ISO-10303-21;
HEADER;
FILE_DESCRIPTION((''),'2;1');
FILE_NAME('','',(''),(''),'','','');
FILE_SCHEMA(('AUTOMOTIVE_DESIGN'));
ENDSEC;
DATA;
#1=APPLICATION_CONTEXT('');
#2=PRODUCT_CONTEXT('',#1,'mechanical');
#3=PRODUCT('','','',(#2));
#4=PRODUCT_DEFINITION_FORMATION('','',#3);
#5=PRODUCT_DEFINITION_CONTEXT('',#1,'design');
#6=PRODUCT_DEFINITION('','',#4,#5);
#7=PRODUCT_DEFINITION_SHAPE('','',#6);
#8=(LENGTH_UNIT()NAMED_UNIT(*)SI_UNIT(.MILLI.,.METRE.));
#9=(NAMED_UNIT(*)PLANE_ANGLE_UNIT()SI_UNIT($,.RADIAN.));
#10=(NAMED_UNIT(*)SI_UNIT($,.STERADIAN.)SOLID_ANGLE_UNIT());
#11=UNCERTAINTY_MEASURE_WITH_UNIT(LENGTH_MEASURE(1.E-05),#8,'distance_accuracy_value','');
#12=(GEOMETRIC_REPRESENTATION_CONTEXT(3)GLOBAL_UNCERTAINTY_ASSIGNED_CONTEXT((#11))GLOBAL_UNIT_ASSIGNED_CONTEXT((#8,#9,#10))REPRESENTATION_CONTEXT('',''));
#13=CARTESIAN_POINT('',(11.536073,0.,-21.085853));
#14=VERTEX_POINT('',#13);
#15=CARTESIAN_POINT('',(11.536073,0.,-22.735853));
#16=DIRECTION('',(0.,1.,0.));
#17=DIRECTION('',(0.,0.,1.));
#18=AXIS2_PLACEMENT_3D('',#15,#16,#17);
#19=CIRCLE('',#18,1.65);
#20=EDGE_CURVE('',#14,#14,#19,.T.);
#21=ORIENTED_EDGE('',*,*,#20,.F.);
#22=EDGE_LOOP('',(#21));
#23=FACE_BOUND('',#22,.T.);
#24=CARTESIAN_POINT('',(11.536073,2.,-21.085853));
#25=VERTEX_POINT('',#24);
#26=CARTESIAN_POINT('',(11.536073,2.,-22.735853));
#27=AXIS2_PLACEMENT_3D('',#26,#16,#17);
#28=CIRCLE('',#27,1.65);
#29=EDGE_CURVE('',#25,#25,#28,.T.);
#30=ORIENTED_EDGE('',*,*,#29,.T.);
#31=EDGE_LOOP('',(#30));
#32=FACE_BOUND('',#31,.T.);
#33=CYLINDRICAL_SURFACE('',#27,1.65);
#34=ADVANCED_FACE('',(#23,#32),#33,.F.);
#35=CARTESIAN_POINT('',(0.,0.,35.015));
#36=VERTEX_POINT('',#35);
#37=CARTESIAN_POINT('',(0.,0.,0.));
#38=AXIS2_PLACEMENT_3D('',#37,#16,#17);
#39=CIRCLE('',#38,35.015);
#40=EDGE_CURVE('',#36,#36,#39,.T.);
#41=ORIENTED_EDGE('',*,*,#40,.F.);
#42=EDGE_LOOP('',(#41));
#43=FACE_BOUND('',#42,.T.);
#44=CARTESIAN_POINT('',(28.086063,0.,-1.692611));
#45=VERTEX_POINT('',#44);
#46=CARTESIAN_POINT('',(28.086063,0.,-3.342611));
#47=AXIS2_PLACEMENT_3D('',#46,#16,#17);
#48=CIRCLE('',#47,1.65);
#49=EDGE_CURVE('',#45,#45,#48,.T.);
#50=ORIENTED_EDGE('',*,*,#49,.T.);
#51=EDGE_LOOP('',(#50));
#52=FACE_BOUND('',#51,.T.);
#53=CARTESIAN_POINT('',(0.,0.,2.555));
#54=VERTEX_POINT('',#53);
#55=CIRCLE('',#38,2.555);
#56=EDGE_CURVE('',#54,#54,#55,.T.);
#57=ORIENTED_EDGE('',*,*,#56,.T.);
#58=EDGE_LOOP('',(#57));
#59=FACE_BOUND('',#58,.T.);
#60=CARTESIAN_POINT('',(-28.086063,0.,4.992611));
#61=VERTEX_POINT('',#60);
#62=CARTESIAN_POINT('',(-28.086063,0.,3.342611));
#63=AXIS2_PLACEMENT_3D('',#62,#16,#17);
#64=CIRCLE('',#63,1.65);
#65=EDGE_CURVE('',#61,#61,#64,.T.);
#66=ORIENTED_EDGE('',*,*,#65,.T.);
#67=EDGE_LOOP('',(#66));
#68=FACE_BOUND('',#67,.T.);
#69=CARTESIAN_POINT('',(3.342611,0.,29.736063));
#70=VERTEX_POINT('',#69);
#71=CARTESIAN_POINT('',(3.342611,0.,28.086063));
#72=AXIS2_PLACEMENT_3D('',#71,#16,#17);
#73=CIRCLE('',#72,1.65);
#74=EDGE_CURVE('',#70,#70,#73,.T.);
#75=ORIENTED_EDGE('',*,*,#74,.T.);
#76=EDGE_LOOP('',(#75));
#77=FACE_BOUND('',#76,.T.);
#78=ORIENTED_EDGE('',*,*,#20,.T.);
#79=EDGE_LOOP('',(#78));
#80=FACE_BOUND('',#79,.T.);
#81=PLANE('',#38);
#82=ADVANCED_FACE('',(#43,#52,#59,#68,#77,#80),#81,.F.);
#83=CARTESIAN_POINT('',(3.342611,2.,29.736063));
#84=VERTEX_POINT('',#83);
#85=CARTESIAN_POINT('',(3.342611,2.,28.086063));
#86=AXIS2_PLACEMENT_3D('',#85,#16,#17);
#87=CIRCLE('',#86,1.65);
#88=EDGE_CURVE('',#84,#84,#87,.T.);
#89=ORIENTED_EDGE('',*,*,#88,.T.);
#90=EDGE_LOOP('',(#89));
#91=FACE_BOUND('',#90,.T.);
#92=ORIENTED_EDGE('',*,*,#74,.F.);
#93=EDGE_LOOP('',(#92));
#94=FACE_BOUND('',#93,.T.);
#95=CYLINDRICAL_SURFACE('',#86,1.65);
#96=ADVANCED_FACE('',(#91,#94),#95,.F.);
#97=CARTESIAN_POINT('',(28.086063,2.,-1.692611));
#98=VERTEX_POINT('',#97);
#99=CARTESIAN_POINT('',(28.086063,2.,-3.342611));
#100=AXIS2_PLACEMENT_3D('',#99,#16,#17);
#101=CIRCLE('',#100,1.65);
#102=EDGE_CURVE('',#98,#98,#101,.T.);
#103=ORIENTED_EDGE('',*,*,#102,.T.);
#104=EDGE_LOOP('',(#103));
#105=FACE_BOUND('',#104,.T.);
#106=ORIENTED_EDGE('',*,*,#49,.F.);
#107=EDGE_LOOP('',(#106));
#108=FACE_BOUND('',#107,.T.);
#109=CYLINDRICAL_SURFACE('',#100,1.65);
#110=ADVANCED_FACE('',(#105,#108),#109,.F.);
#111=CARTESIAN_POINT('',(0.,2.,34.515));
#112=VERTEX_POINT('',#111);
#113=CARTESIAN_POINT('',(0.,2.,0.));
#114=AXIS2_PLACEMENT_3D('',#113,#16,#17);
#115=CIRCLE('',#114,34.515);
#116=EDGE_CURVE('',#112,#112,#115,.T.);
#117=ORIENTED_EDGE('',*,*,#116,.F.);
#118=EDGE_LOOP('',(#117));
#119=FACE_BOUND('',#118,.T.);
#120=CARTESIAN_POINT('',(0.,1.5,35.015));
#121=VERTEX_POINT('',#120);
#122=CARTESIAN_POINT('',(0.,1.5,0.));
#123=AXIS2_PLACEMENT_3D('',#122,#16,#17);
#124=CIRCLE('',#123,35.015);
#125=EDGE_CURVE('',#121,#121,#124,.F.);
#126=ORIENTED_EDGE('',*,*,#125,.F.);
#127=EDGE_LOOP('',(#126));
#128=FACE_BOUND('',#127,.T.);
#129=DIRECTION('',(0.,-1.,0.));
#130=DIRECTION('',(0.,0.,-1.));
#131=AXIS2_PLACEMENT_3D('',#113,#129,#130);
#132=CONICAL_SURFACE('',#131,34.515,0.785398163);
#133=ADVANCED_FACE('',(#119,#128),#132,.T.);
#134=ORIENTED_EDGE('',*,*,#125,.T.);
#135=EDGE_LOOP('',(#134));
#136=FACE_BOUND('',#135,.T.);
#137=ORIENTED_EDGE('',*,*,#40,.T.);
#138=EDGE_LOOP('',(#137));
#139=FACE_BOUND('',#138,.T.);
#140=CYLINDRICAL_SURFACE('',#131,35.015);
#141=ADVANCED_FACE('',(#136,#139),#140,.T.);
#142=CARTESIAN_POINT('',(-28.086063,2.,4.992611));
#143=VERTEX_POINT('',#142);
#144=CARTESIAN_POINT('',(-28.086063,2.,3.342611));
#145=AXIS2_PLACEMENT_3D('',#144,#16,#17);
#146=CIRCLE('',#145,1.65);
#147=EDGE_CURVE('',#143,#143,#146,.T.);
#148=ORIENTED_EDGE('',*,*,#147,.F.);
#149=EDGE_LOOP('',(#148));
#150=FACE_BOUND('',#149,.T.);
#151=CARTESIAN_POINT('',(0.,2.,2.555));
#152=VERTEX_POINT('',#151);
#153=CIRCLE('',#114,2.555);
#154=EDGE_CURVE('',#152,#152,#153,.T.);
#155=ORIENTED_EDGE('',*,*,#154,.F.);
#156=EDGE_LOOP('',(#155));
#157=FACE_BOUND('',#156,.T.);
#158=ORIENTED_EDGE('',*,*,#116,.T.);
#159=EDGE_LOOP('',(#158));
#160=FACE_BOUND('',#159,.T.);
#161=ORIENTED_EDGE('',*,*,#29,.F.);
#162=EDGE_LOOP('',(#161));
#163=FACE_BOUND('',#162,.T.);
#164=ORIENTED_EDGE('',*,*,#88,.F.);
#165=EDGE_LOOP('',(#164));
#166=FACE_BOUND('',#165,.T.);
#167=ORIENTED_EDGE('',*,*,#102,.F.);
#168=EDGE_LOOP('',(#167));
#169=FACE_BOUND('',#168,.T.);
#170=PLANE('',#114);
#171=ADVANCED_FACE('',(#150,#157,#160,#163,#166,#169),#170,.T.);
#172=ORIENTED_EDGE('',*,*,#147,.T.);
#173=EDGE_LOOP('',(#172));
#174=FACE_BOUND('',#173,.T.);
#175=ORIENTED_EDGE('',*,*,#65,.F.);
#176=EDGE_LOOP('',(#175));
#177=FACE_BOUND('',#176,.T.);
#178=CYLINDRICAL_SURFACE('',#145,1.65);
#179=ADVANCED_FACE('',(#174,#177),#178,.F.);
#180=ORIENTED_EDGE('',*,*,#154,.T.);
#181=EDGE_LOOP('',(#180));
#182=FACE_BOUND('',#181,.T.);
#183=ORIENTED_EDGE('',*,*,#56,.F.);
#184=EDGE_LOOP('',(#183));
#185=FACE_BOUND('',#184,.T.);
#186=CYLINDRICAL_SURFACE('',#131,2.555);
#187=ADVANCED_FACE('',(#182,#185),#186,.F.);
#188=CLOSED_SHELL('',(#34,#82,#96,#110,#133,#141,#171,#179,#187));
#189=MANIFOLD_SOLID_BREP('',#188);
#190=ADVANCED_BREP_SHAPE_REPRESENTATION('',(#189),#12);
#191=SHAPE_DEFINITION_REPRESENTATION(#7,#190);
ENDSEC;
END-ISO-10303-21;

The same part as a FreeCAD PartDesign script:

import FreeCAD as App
import Part
import Sketcher

V = App.Vector


def edges_at(feature, points):
    """Names of the edges that pass closest to the given points."""
    edges = feature.Shape.Edges
    near = lambda p: min(range(len(edges)), key=lambda i: edges[i].distToShape(Part.Vertex(*p))[0])
    return sorted({f"Edge{near(p) + 1}" for p in points})

doc = App.newDocument("Part")
body = doc.addObject("PartDesign::Body", "Body")

# Sketch on XZ plane
sketch1 = body.newObject("Sketcher::SketchObject", "Sketch")
sketch1.AttachmentSupport = (doc.getObject("XZ_Plane"), [""])
sketch1.MapMode = "FlatFace"
sketch1.addGeometry(Part.Circle(V(0, 0, 0), V(0, 0, 1), 35), False)
sketch1.addGeometry(Part.Circle(V(0, 0, 0), V(0, 0, 1), 2.6), False)
sketch1.addConstraint(Sketcher.Constraint("Coincident", 0, 3, -1, 1))
sketch1.addConstraint(Sketcher.Constraint("Coincident", 1, 3, -1, 1))
sketch1.addConstraint(Sketcher.Constraint("Diameter", 0, 70.03))
sketch1.addConstraint(Sketcher.Constraint("Diameter", 1, 5.11))
pad1 = body.newObject("PartDesign::Pad", "Pad")
pad1.Profile = sketch1
pad1.Length = 2
pad1.Reversed = True
doc.recompute()

chamfer = body.newObject("PartDesign::Chamfer", "Chamfer")
chamfer.Base = (pad1, edges_at(pad1, [(-35.015, 2, 0)]))
chamfer.Size = 0.5

# Sketch on XZ plane
sketch2 = body.newObject("Sketcher::SketchObject", "Sketch001")
sketch2.AttachmentSupport = (doc.getObject("XZ_Plane"), [""])
sketch2.MapMode = "FlatFace"
sketch2.AttachmentOffset = App.Placement(V(0, 0, -2), App.Rotation())
sketch2.addGeometry(Part.Circle(V(3.3, 28.1, 0), V(0, 0, 1), 1.6), False)
sketch2.addGeometry(Part.Circle(V(-28.1, 3.3, 0), V(0, 0, 1), 1.6), False)
sketch2.addGeometry(Part.Circle(V(11.5, -22.7, 0), V(0, 0, 1), 1.6), False)
sketch2.addGeometry(Part.Circle(V(28.1, -3.3, 0), V(0, 0, 1), 1.6), False)
sketch2.addConstraint(Sketcher.Constraint("Equal", 0, 1))
sketch2.addConstraint(Sketcher.Constraint("Equal", 1, 2))
sketch2.addConstraint(Sketcher.Constraint("Equal", 2, 3))
sketch2.addConstraint(Sketcher.Constraint("Symmetric", 1, 3, 3, 3, -1, 1))
sketch2.addConstraint(Sketcher.Constraint("Diameter", 0, 3.3))
sketch2.addConstraint(Sketcher.Constraint("DistanceX", -1, 1, 0, 3, 3.342611))
sketch2.addConstraint(Sketcher.Constraint("DistanceY", -1, 1, 1, 3, 3.342611))
sketch2.addConstraint(Sketcher.Constraint("DistanceX", 0, 3, 2, 3, 8.193462))
sketch2.addConstraint(Sketcher.Constraint("DistanceX", 2, 3, 3, 3, 16.54999))
sketch2.addConstraint(Sketcher.Constraint("DistanceY", 2, 3, 3, 3, 19.393242))
sketch2.addConstraint(Sketcher.Constraint("DistanceY", -1, 1, 0, 3, 28.086063))
doc.recompute()
hole = body.newObject("PartDesign::Hole", "Hole")
hole.Profile = sketch2
hole.ThreadType = "None"
hole.Diameter = 3.3
hole.DepthType = "ThroughAll"
hole.Reversed = True

doc.recompute()
